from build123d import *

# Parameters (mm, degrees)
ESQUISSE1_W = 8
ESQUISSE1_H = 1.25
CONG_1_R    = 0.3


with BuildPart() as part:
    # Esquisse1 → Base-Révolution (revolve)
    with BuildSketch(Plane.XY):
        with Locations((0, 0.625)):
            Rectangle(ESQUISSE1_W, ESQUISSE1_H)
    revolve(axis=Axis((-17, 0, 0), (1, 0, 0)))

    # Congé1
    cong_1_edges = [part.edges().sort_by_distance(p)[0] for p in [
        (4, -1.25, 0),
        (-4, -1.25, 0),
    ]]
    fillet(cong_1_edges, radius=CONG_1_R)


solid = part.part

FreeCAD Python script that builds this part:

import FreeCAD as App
import Part
import Sketcher


def edges_at(feature, points):
    """Names of the edges that pass closest to the given points."""
    edges = feature.Shape.Edges
    near = lambda p: min(range(len(edges)), key=lambda i: edges[i].distToShape(Part.Vertex(*p))[0])
    return sorted({f"Edge{near(p) + 1}" for p in points})


def add_polygon(sketch, points):
    """Adds a closed chain of lines whose ends are joined by coincident constraints."""
    first, n = sketch.GeometryCount, len(points)
    for a, b in zip(points, points[1:] + points[:1]):
        sketch.addGeometry(Part.LineSegment(App.Vector(*a, 0), App.Vector(*b, 0)), False)
    for i in range(n):
        sketch.addConstraint(Sketcher.Constraint("Coincident", first + i, 2, first + (i + 1) % n, 1))

doc = App.newDocument("Part")
body = doc.addObject("PartDesign::Body", "Body")

sketch1 = body.newObject("Sketcher::SketchObject", "Sketch")
sketch1.AttachmentSupport = (doc.getObject("XY_Plane"), [""])
sketch1.MapMode = "FlatFace"
add_polygon(sketch1, [(-4, 1.25), (-4, 0), (4, 0), (4, 1.25)])
sketch1.addConstraint([
    Sketcher.Constraint("Vertical", 0),
    Sketcher.Constraint("Horizontal", 1),
    Sketcher.Constraint("Vertical", 2),
    Sketcher.Constraint("Horizontal", 3),
    Sketcher.Constraint("Symmetric", 0, 2, 1, 2, -1, 1),
    Sketcher.Constraint("DistanceX", 1, 1, 1, 2, 8.0),
    Sketcher.Constraint("DistanceY", 0, 2, 0, 1, 1.25),
])
revolution = body.newObject("PartDesign::Revolution", "Revolution")
revolution.Profile = sketch1
revolution.ReferenceAxis = (sketch1, ["H_Axis"])
revolution.Angle = 360
doc.recompute()

fillet = body.newObject("PartDesign::Fillet", "Fillet")
fillet.Base = (revolution, edges_at(revolution, [(4, -1.25, 0), (-4, -1.25, 0)]))
fillet.Radius = 0.3

doc.recompute()
